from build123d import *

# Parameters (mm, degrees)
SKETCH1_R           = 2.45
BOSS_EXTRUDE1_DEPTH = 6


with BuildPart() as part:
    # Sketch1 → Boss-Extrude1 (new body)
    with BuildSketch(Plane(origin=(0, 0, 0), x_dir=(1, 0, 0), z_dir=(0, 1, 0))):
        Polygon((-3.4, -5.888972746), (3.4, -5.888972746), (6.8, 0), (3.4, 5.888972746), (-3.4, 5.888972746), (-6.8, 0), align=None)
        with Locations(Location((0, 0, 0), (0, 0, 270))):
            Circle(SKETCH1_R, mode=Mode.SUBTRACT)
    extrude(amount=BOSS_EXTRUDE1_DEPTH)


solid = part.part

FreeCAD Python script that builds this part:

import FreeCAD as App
import Part
import Sketcher
from FreeCAD import Vector
Q = App.Units.Quantity


def add_polygon(sketch, points):
    """Adds a closed chain of lines whose ends are joined by coincident constraints."""
    first, n = sketch.GeometryCount, len(points)
    for a, b in zip(points, points[1:] + points[:1]):
        sketch.addGeometry(Part.LineSegment(App.Vector(*a, 0), App.Vector(*b, 0)), False)
    for i in range(n):
        sketch.addConstraint(Sketcher.Constraint("Coincident", first + i, 2, first + (i + 1) % n, 1))

doc = App.newDocument("Part")
body = doc.addObject("PartDesign::Body", "Body")

# Sketch on XZ plane
sketch1 = body.newObject("Sketcher::SketchObject", "Sketch")
sketch1.AttachmentSupport = (doc.getObject("XZ_Plane"), [""])
sketch1.MapMode = "FlatFace"
add_polygon(sketch1, [(-3.4, 5.888973), (3.4, 5.888973), (6.8, 0), (3.4, -5.888973), (-3.4, -5.888973), (-6.8, 0)])  # lines 0-5
sketch1.addGeometry(Part.Circle(Vector(0, 0, 0), Vector(0, 0, 1), 2.45), False)  # 6
sketch1.addConstraint(Sketcher.Constraint("Horizontal", 0))
sketch1.addConstraint(Sketcher.Constraint("Horizontal", 3))
sketch1.addConstraint(Sketcher.Constraint("Coincident", 6, 3, -1, 1))
sketch1.addConstraint(Sketcher.Constraint("Symmetric", 0, 2, 3, 2, -1, 1))
sketch1.addConstraint(Sketcher.Constraint("Symmetric", 1, 2, 4, 2, -1, 1))
sketch1.addConstraint(Sketcher.Constraint("PointOnObject", 1, 2, -1))
sketch1.addConstraint(Sketcher.Constraint("Parallel", 2, 5))
sketch1.addConstraint(Sketcher.Constraint("Vertical", 0, 2, 2, 2))
sketch1.addConstraint(Sketcher.Constraint("Diameter", 6, Q("4.9 mm")))
sketch1.addConstraint(Sketcher.Constraint("Angle", 1, Q("-60 deg")))
sketch1.addConstraint(Sketcher.Constraint("DistanceX", 0, 1, 0, 2, Q("6.8 mm")))
sketch1.addConstraint(Sketcher.Constraint("Distance", 1, Q("6.8 mm")))
pad1 = body.newObject("PartDesign::Pad", "Pad")
pad1.Profile = sketch1
pad1.Length = 6
pad1.Reversed = True

doc.recompute()
